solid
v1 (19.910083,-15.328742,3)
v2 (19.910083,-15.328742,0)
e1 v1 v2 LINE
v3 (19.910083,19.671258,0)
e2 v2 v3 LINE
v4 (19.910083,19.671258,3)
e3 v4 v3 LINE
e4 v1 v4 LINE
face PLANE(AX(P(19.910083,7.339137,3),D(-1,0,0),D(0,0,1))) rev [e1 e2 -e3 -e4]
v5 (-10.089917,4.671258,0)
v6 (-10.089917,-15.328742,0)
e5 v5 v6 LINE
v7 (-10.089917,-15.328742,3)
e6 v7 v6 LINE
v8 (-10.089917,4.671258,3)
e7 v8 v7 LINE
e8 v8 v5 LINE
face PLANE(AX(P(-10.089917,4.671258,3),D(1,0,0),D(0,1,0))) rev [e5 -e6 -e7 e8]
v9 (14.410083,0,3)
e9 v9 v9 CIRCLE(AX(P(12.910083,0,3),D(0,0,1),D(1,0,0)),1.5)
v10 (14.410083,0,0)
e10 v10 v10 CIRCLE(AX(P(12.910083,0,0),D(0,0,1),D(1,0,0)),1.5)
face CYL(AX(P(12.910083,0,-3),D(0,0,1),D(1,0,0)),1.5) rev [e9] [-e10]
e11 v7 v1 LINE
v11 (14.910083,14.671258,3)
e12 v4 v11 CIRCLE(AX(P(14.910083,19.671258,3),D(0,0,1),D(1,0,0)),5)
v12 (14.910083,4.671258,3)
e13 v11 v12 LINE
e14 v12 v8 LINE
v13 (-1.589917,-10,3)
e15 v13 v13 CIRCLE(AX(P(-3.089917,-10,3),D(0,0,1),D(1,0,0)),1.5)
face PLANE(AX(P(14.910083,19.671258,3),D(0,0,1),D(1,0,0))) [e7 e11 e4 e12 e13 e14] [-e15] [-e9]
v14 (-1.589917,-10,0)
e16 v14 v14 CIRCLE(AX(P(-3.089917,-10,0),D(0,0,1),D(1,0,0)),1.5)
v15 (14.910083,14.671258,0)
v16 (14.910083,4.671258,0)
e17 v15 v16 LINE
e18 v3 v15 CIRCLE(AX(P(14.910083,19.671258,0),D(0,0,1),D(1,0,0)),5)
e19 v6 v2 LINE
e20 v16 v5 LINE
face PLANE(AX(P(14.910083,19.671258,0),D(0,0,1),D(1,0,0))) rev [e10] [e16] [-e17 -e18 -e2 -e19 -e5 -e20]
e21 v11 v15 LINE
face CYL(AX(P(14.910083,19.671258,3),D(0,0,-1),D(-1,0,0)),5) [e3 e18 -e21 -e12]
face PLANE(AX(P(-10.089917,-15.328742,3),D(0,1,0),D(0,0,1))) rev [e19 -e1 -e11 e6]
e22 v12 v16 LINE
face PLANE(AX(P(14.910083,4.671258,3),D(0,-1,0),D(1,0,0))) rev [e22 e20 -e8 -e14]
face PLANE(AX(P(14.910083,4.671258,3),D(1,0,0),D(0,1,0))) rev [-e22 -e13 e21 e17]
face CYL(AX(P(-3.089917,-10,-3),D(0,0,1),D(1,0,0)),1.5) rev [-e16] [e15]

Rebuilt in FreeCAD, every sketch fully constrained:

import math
import FreeCAD as App
import Part
import Sketcher
from FreeCAD import Vector

doc = App.newDocument("Part")
body = doc.addObject("PartDesign::Body", "Body")

# Sketch on XY plane
sketch1 = body.newObject("Sketcher::SketchObject", "Sketch")
sketch1.AttachmentSupport = (doc.getObject("XY_Plane"), [""])
sketch1.MapMode = "FlatFace"
sketch1.addGeometry(Part.LineSegment(Vector(15, 15, 0), Vector(15, 5, 0)), False)
sketch1.addGeometry(Part.LineSegment(Vector(15, 5, 0), Vector(-10, 5, 0)), False)
sketch1.addGeometry(Part.LineSegment(Vector(-10, 5, 0), Vector(-10, -15, 0)), False)
sketch1.addGeometry(Part.LineSegment(Vector(-10, -15, 0), Vector(20, -15, 0)), False)
sketch1.addGeometry(Part.LineSegment(Vector(20, -15, 0), Vector(20, 20, 0)), False)
sketch1.addGeometry(Part.ArcOfCircle(Part.Circle(Vector(15, 20, 0), Vector(0, 0, 1), 5), math.radians(0), math.radians(270)), False)
sketch1.addConstraint(Sketcher.Constraint("Coincident", 0, 2, 1, 1))
sketch1.addConstraint(Sketcher.Constraint("Coincident", 1, 2, 2, 1))
sketch1.addConstraint(Sketcher.Constraint("Coincident", 2, 2, 3, 1))
sketch1.addConstraint(Sketcher.Constraint("Coincident", 3, 2, 4, 1))
sketch1.addConstraint(Sketcher.Constraint("Tangent", 4, 2, 5, 1))
sketch1.addConstraint(Sketcher.Constraint("Coincident", 5, 2, 0, 1))
sketch1.addConstraint(Sketcher.Constraint("Vertical", 0))
sketch1.addConstraint(Sketcher.Constraint("Horizontal", 1))
sketch1.addConstraint(Sketcher.Constraint("Vertical", 2))
sketch1.addConstraint(Sketcher.Constraint("Horizontal", 3))
sketch1.addConstraint(Sketcher.Constraint("Vertical", 4))
sketch1.addConstraint(Sketcher.Constraint("Vertical", 5, 3, 0, 2))
sketch1.addConstraint(Sketcher.Constraint("Radius", 5, 5.0))
sketch1.addConstraint(Sketcher.Constraint("DistanceX", 1, 2, 1, 1, 25.0))
sketch1.addConstraint(Sketcher.Constraint("DistanceY", 0, 2, 0, 1, 10.0))
sketch1.addConstraint(Sketcher.Constraint("DistanceY", 2, 2, 2, 1, 20.0))
sketch1.addConstraint(Sketcher.Constraint("DistanceY", -1, 1, 5, 3, 19.671258))
sketch1.addConstraint(Sketcher.Constraint("DistanceX", -1, 1, 5, 3, 14.910083))
pad1 = body.newObject("PartDesign::Pad", "Pad")
pad1.Profile = sketch1
pad1.Length = 3

# Sketch on XY plane
sketch2 = body.newObject("Sketcher::SketchObject", "Sketch001")
sketch2.AttachmentSupport = (doc.getObject("XY_Plane"), [""])
sketch2.MapMode = "FlatFace"
sketch2.AttachmentOffset = App.Placement(Vector(0, 0, 3), App.Rotation())
sketch2.addGeometry(Part.Circle(Vector(12.9, 0, 0), Vector(0, 0, 1), 1.5), False)
sketch2.addGeometry(Part.Circle(Vector(-3.1, -10, 0), Vector(0, 0, 1), 1.5), False)
sketch2.addConstraint(Sketcher.Constraint("Equal", 0, 1))
sketch2.addConstraint(Sketcher.Constraint("PointOnObject", 0, 3, -1))
sketch2.addConstraint(Sketcher.Constraint("Diameter", 0, 3.0))
sketch2.addConstraint(Sketcher.Constraint("DistanceY", 1, 3, -1, 1, 10.0))
sketch2.addConstraint(Sketcher.Constraint("DistanceX", 1, 3, 0, 3, 16.0))
sketch2.addConstraint(Sketcher.Constraint("DistanceX", -1, 1, 0, 3, 12.910083))
pocket1 = body.newObject("PartDesign::Pocket", "Pocket")
pocket1.Profile = sketch2
pocket1.Length = 6

doc.recompute()
